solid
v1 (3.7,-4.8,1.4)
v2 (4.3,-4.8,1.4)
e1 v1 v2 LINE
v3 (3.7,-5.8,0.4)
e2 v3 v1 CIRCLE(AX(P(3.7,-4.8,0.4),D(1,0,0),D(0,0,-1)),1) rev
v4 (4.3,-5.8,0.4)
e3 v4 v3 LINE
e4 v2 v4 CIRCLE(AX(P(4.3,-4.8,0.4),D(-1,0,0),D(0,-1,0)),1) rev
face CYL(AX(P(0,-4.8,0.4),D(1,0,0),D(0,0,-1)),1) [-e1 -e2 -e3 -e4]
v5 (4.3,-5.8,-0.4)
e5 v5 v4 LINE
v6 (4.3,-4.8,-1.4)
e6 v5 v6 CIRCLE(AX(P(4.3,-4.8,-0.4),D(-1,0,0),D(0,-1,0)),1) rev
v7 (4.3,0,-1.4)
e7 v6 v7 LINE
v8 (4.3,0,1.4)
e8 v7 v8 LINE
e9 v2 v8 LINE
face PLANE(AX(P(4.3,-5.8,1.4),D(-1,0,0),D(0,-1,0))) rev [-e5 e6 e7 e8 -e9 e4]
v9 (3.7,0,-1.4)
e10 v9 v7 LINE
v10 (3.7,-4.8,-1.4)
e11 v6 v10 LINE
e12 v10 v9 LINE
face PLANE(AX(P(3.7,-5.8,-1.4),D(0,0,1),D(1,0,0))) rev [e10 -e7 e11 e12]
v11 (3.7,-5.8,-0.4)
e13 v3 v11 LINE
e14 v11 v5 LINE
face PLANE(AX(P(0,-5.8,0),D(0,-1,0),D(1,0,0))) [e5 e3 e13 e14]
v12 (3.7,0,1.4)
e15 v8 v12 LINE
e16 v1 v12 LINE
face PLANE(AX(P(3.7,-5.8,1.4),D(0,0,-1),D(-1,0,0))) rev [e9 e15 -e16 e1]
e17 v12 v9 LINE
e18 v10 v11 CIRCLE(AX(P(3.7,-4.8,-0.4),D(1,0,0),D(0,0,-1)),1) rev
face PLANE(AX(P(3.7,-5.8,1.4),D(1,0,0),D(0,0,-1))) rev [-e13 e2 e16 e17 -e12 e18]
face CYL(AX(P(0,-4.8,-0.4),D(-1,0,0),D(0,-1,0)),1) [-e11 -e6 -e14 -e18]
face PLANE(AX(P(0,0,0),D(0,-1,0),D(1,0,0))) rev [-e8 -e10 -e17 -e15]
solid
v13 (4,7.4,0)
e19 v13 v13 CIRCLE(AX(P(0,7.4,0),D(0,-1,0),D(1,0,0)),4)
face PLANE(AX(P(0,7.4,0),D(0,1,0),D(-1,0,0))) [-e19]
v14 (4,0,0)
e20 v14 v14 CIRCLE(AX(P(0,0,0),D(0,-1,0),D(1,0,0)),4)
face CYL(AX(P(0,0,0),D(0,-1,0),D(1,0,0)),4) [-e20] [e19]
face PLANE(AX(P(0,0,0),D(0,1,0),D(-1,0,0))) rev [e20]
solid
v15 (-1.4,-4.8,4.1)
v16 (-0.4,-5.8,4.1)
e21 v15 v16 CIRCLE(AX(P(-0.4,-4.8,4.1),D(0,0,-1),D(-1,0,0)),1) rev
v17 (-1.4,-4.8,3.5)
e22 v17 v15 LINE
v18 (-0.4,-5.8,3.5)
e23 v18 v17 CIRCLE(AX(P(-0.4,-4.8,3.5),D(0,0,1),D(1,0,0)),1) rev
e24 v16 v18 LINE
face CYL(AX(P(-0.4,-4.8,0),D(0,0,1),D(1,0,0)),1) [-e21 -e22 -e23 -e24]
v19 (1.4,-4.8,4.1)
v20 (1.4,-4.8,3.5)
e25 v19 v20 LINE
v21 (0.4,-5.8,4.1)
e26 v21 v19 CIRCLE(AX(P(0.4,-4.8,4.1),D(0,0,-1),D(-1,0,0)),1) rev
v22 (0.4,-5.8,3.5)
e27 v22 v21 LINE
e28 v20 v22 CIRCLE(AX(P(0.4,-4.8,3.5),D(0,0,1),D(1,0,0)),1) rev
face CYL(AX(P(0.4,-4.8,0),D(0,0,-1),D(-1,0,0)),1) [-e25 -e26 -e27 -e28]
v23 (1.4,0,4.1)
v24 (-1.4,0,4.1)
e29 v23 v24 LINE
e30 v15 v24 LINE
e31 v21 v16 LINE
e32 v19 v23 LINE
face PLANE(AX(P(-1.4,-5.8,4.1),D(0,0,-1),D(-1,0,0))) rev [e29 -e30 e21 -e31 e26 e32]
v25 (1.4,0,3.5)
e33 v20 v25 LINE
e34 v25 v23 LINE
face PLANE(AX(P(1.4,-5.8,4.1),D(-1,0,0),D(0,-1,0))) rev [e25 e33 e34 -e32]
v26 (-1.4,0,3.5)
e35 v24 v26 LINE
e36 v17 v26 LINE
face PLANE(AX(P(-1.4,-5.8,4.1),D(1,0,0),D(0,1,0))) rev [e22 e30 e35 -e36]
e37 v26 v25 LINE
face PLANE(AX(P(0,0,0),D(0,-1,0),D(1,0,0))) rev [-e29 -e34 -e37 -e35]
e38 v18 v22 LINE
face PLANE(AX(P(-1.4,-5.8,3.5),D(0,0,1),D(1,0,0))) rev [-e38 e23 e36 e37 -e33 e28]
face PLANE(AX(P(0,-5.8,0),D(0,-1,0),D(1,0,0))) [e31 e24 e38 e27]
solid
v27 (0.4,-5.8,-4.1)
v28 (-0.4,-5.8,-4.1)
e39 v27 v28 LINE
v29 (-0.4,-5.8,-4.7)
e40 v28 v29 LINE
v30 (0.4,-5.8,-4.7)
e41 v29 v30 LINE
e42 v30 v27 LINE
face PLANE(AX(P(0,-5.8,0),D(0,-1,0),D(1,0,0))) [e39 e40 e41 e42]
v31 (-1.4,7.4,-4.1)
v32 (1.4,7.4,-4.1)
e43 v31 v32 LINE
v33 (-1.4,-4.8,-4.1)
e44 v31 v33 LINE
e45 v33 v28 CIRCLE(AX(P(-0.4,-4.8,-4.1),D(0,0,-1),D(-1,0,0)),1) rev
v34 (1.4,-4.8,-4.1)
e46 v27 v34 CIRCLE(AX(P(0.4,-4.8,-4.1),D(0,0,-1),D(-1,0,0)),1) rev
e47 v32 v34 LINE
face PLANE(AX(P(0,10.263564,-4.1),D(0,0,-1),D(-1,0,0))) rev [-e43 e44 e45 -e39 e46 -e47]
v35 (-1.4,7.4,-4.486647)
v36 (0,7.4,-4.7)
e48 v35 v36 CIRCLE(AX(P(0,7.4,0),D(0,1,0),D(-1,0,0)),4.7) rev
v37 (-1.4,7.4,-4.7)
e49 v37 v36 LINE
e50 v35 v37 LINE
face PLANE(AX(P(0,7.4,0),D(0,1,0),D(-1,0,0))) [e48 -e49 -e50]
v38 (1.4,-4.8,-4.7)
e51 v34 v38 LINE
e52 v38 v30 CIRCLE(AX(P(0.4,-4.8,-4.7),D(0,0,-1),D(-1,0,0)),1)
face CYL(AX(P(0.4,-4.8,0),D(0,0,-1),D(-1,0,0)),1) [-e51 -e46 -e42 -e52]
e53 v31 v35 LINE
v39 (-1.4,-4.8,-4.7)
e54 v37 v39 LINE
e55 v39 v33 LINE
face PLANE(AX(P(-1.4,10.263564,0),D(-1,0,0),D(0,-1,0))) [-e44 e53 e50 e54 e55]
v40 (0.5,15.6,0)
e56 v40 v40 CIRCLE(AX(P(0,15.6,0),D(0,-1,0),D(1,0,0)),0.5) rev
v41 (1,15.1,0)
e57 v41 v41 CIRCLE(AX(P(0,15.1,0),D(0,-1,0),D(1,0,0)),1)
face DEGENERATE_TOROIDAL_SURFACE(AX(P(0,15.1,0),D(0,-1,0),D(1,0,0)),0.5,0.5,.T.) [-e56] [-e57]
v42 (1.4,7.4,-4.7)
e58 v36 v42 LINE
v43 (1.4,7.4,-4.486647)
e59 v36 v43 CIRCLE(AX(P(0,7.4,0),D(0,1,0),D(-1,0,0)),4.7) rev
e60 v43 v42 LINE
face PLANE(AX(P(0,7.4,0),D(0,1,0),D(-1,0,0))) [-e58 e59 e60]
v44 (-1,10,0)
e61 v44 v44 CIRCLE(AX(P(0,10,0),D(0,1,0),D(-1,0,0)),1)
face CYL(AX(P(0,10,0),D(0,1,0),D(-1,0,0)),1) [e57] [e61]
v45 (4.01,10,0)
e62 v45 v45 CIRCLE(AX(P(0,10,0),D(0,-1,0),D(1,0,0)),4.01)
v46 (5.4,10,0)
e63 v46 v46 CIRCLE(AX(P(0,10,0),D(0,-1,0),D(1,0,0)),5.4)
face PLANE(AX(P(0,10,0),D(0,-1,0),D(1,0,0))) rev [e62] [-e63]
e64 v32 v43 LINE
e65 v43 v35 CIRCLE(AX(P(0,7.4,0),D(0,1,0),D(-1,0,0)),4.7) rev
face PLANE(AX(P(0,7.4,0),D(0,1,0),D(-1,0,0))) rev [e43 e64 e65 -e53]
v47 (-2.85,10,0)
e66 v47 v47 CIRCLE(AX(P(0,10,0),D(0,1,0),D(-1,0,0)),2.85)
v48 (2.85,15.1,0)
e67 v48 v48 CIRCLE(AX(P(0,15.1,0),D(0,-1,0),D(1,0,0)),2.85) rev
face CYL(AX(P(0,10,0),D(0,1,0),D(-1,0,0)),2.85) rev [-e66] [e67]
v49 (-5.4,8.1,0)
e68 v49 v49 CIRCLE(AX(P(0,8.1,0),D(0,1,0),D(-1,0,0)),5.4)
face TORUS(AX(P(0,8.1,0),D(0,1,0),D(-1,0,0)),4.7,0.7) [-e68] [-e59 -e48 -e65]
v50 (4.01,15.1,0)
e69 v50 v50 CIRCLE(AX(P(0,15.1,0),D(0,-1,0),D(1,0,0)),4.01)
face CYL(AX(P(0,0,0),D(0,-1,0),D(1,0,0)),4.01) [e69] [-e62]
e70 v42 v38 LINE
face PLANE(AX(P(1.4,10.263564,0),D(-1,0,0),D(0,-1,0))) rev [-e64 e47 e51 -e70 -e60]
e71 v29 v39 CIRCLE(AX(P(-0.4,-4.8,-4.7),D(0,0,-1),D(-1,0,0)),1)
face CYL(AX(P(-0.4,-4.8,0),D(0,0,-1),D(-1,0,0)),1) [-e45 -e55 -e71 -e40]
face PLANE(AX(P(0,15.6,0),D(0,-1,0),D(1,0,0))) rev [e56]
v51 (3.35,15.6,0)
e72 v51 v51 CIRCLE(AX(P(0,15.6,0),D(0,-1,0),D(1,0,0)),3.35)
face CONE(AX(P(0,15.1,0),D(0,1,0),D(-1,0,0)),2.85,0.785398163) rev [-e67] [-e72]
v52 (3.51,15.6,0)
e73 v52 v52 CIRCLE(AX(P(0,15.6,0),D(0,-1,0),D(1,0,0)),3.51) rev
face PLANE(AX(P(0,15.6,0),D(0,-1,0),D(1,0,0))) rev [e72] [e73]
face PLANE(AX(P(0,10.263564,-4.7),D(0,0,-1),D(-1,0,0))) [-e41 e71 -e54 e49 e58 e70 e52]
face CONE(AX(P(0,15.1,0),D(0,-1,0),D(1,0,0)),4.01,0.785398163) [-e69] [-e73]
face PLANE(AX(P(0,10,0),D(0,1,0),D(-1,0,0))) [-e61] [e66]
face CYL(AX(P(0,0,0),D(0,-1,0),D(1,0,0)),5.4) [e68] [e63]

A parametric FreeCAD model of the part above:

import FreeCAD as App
import Part
import Sketcher

V = App.Vector
Q = App.Units.Quantity


def edges_at(feature, points):
    """Names of the edges that pass closest to the given points."""
    edges = feature.Shape.Edges
    near = lambda p: min(range(len(edges)), key=lambda i: edges[i].distToShape(Part.Vertex(*p))[0])
    return sorted({f"Edge{near(p) + 1}" for p in points})


def add_polygon(sketch, points):
    """Adds a closed chain of lines whose ends are joined by coincident constraints."""
    first, n = sketch.GeometryCount, len(points)
    for a, b in zip(points, points[1:] + points[:1]):
        sketch.addGeometry(Part.LineSegment(App.Vector(*a, 0), App.Vector(*b, 0)), False)
    for i in range(n):
        sketch.addConstraint(Sketcher.Constraint("Coincident", first + i, 2, first + (i + 1) % n, 1))

doc = App.newDocument("Part")
body = doc.addObject("PartDesign::Body", "Body")

sketch1 = body.newObject("Sketcher::SketchObject", "Sketch")
sketch1.AttachmentSupport = (doc.getObject("XY_Plane"), [""])
sketch1.MapMode = "FlatFace"
add_polygon(sketch1, [(0, 7.4), (0, 15.6), (-4, 15.6), (-4, 10), (-5.4, 10), (-5.4, 7.4)])
sketch1.addConstraint([
    Sketcher.Constraint("Vertical", 0),
    Sketcher.Constraint("Horizontal", 1),
    Sketcher.Constraint("Vertical", 2),
    Sketcher.Constraint("Horizontal", 3),
    Sketcher.Constraint("Vertical", 4),
    Sketcher.Constraint("Horizontal", 5),
    Sketcher.Constraint("PointOnObject", 0, 2, -2),
    Sketcher.Constraint("DistanceX", 5, 1, 5, 2, Q("5.4 mm")),
    Sketcher.Constraint("DistanceY", 0, 1, 0, 2, Q("8.2 mm")),
    Sketcher.Constraint("DistanceY", 2, 2, 2, 1, Q("5.6 mm")),
    Sketcher.Constraint("DistanceY", -1, 1, 2, 2, Q("10 mm")),
    Sketcher.Constraint("DistanceX", 1, 2, 1, 1, Q("4.01 mm")),
])
revolution = body.newObject("PartDesign::Revolution", "Revolution")
revolution.Profile = sketch1
revolution.ReferenceAxis = (sketch1, ["V_Axis"])
revolution.Angle = 360
doc.recompute()

fillet = body.newObject("PartDesign::Fillet", "Fillet")
fillet.Base = (revolution, edges_at(revolution, [(5.4, 7.4, 0)]))
fillet.Radius = 0.7

sketch2 = body.newObject("Sketcher::SketchObject", "Sketch001")
sketch2.AttachmentSupport = (doc.getObject("XZ_Plane"), [""])
sketch2.MapMode = "FlatFace"
sketch2.AttachmentOffset = App.Placement(V(0, 0, -15.6), App.Rotation())
sketch2.addGeometry([
    Part.Circle(V(0, 0, 0), V(0, 0, 1), 2.9),
    Part.Circle(V(0, 0, 0), V(0, 0, 1), 1),
], False)
sketch2.addConstraint([
    Sketcher.Constraint("Coincident", 0, 3, -1, 1),
    Sketcher.Constraint("Coincident", 1, 3, -1, 1),
    Sketcher.Constraint("Diameter", 1, Q("2 mm")),
    Sketcher.Constraint("Diameter", 0, Q("5.7 mm")),
])
pocket1 = body.newObject("PartDesign::Pocket", "Pocket")
pocket1.Profile = sketch2
pocket1.Length = 5.6
pocket1.Reversed = True
doc.recompute()

fillet2 = body.newObject("PartDesign::Fillet", "Fillet001")
fillet2.Base = (pocket1, edges_at(pocket1, [(-1, 15.6, 0)]))
fillet2.Radius = 0.5
doc.recompute()

chamfer = body.newObject("PartDesign::Chamfer", "Chamfer")
chamfer.Base = (fillet2, edges_at(fillet2, [(-2.85, 15.6, 0), (4.01, 15.6, 0)]))
chamfer.Size = 0.5
body2 = doc.addObject("PartDesign::Body", "Body001")

sketch3 = body2.newObject("Sketcher::SketchObject", "Sketch002")
sketch3.AttachmentSupport = (doc.getObject("XY_Plane001"), [""])
sketch3.MapMode = "FlatFace"
add_polygon(sketch3, [(-4, 7.4), (-4, 0), (0, 0), (0, 7.4)])
sketch3.addConstraint([
    Sketcher.Constraint("Vertical", 0),
    Sketcher.Constraint("Horizontal", 1),
    Sketcher.Constraint("Vertical", 2),
    Sketcher.Constraint("Horizontal", 3),
    Sketcher.Constraint("Coincident", 1, 2, -1, 1),
    Sketcher.Constraint("DistanceX", 1, 1, 1, 2, Q("4 mm")),
    Sketcher.Constraint("DistanceY", 0, 2, 0, 1, Q("7.4 mm")),
])
revolution2 = body2.newObject("PartDesign::Revolution", "Revolution001")
revolution2.Profile = sketch3
revolution2.ReferenceAxis = (sketch3, ["V_Axis"])
revolution2.Angle = 360
body3 = doc.addObject("PartDesign::Body", "Body002")

sketch4 = body3.newObject("Sketcher::SketchObject", "Sketch003")
sketch4.AttachmentSupport = (doc.getObject("XZ_Plane002"), [""])
sketch4.MapMode = "FlatFace"
add_polygon(sketch4, [(-1.4, 4.1), (-1.4, 3.5), (1.4, 3.5), (1.4, 4.1)])
sketch4.addConstraint([
    Sketcher.Constraint("Vertical", 0),
    Sketcher.Constraint("Horizontal", 1),
    Sketcher.Constraint("Vertical", 2),
    Sketcher.Constraint("Horizontal", 3),
    Sketcher.Constraint("DistanceX", 1, 1, 1, 2, Q("2.8 mm")),
    Sketcher.Constraint("DistanceY", 0, 2, 0, 1, Q("0.6 mm")),
    Sketcher.Constraint("DistanceX", 0, 2, -1, 1, Q("1.4 mm")),
    Sketcher.Constraint("DistanceY", -1, 1, 0, 2, Q("3.5 mm")),
])
pad1 = body3.newObject("PartDesign::Pad", "Pad")
pad1.Profile = sketch4
pad1.Length = 5.8
doc.recompute()

fillet3 = body3.newObject("PartDesign::Fillet", "Fillet002")
fillet3.Base = (pad1, edges_at(pad1, [(-1.4, -5.8, 3.8), (1.4, -5.8, 3.8)]))
fillet3.Radius = 1
body4 = doc.addObject("PartDesign::Body", "Body003")

sketch5 = body4.newObject("Sketcher::SketchObject", "Sketch004")
sketch5.AttachmentSupport = (doc.getObject("XZ_Plane003"), [""])
sketch5.MapMode = "FlatFace"
add_polygon(sketch5, [(-1.4, -4.1), (-1.4, -4.7), (1.4, -4.7), (1.4, -4.1)])
sketch5.addConstraint([
    Sketcher.Constraint("Vertical", 0),
    Sketcher.Constraint("Horizontal", 1),
    Sketcher.Constraint("Vertical", 2),
    Sketcher.Constraint("Horizontal", 3),
    Sketcher.Constraint("DistanceX", 1, 1, 1, 2, Q("2.8 mm")),
    Sketcher.Constraint("DistanceY", 0, 2, 0, 1, Q("0.6 mm")),
    Sketcher.Constraint("DistanceX", 0, 2, -1, 1, Q("1.4 mm")),
    Sketcher.Constraint("DistanceY", 0, 2, -1, 1, Q("4.7 mm")),
])
pad2 = body4.newObject("PartDesign::Pad", "Pad001")
pad2.Profile = sketch5
pad2.Length = 5.8
body5 = doc.addObject("PartDesign::Body", "Body004")

sketch6 = body5.newObject("Sketcher::SketchObject", "Sketch005")
sketch6.AttachmentSupport = (doc.getObject("XZ_Plane004"), [""])
sketch6.MapMode = "FlatFace"
add_polygon(sketch6, [(3.7, 1.4), (3.7, -1.4), (4.3, -1.4), (4.3, 1.4)])
sketch6.addConstraint([
    Sketcher.Constraint("Vertical", 0),
    Sketcher.Constraint("Horizontal", 1),
    Sketcher.Constraint("Vertical", 2),
    Sketcher.Constraint("Horizontal", 3),
    Sketcher.Constraint("DistanceX", 1, 1, 1, 2, Q("0.6 mm")),
    Sketcher.Constraint("DistanceY", 0, 2, 0, 1, Q("2.8 mm")),
    Sketcher.Constraint("DistanceX", -1, 1, 0, 2, Q("3.7 mm")),
    Sketcher.Constraint("DistanceY", 0, 2, -1, 1, Q("1.4 mm")),
])
pad3 = body5.newObject("PartDesign::Pad", "Pad002")
pad3.Profile = sketch6
pad3.Length = 5.8
doc.recompute()

fillet4 = body5.newObject("PartDesign::Fillet", "Fillet003")
fillet4.Base = (pad3, edges_at(pad3, [(4, -5.8, -1.4), (4, -5.8, 1.4)]))
fillet4.Radius = 1
body.AllowCompound = True
doc.recompute()

boolean = body.newObject("PartDesign::Boolean", "Boolean")
boolean.Type = "Fuse"
boolean.addObjects([body4])

sketch7 = body.newObject("Sketcher::SketchObject", "Sketch006")
sketch7.AttachmentSupport = (doc.getObject("XZ_Plane"), [""])
sketch7.MapMode = "FlatFace"
add_polygon(sketch7, [(-1.4, -4.1), (-1.4, -4.7), (1.4, -4.7), (1.4, -4.1)])
sketch7.addConstraint([
    Sketcher.Constraint("Vertical", 0),
    Sketcher.Constraint("Horizontal", 1),
    Sketcher.Constraint("Vertical", 2),
    Sketcher.Constraint("Horizontal", 3),
    Sketcher.Constraint("DistanceX", 1, 1, 1, 2, Q("2.8 mm")),
    Sketcher.Constraint("DistanceY", 0, 2, 0, 1, Q("0.6 mm")),
    Sketcher.Constraint("DistanceX", 0, 2, -1, 1, Q("1.4 mm")),
    Sketcher.Constraint("DistanceY", 0, 2, -1, 1, Q("4.7 mm")),
])
pad4 = body.newObject("PartDesign::Pad", "Pad003")
pad4.Profile = sketch7
pad4.Length = 7.4
pad4.Reversed = True
doc.recompute()

fillet5 = body.newObject("PartDesign::Fillet", "Fillet004")
fillet5.Base = (pad4, edges_at(pad4, [(1.4, -5.8, -4.4), (-1.4, -5.8, -4.4)]))
fillet5.Radius = 1

doc.recompute()
